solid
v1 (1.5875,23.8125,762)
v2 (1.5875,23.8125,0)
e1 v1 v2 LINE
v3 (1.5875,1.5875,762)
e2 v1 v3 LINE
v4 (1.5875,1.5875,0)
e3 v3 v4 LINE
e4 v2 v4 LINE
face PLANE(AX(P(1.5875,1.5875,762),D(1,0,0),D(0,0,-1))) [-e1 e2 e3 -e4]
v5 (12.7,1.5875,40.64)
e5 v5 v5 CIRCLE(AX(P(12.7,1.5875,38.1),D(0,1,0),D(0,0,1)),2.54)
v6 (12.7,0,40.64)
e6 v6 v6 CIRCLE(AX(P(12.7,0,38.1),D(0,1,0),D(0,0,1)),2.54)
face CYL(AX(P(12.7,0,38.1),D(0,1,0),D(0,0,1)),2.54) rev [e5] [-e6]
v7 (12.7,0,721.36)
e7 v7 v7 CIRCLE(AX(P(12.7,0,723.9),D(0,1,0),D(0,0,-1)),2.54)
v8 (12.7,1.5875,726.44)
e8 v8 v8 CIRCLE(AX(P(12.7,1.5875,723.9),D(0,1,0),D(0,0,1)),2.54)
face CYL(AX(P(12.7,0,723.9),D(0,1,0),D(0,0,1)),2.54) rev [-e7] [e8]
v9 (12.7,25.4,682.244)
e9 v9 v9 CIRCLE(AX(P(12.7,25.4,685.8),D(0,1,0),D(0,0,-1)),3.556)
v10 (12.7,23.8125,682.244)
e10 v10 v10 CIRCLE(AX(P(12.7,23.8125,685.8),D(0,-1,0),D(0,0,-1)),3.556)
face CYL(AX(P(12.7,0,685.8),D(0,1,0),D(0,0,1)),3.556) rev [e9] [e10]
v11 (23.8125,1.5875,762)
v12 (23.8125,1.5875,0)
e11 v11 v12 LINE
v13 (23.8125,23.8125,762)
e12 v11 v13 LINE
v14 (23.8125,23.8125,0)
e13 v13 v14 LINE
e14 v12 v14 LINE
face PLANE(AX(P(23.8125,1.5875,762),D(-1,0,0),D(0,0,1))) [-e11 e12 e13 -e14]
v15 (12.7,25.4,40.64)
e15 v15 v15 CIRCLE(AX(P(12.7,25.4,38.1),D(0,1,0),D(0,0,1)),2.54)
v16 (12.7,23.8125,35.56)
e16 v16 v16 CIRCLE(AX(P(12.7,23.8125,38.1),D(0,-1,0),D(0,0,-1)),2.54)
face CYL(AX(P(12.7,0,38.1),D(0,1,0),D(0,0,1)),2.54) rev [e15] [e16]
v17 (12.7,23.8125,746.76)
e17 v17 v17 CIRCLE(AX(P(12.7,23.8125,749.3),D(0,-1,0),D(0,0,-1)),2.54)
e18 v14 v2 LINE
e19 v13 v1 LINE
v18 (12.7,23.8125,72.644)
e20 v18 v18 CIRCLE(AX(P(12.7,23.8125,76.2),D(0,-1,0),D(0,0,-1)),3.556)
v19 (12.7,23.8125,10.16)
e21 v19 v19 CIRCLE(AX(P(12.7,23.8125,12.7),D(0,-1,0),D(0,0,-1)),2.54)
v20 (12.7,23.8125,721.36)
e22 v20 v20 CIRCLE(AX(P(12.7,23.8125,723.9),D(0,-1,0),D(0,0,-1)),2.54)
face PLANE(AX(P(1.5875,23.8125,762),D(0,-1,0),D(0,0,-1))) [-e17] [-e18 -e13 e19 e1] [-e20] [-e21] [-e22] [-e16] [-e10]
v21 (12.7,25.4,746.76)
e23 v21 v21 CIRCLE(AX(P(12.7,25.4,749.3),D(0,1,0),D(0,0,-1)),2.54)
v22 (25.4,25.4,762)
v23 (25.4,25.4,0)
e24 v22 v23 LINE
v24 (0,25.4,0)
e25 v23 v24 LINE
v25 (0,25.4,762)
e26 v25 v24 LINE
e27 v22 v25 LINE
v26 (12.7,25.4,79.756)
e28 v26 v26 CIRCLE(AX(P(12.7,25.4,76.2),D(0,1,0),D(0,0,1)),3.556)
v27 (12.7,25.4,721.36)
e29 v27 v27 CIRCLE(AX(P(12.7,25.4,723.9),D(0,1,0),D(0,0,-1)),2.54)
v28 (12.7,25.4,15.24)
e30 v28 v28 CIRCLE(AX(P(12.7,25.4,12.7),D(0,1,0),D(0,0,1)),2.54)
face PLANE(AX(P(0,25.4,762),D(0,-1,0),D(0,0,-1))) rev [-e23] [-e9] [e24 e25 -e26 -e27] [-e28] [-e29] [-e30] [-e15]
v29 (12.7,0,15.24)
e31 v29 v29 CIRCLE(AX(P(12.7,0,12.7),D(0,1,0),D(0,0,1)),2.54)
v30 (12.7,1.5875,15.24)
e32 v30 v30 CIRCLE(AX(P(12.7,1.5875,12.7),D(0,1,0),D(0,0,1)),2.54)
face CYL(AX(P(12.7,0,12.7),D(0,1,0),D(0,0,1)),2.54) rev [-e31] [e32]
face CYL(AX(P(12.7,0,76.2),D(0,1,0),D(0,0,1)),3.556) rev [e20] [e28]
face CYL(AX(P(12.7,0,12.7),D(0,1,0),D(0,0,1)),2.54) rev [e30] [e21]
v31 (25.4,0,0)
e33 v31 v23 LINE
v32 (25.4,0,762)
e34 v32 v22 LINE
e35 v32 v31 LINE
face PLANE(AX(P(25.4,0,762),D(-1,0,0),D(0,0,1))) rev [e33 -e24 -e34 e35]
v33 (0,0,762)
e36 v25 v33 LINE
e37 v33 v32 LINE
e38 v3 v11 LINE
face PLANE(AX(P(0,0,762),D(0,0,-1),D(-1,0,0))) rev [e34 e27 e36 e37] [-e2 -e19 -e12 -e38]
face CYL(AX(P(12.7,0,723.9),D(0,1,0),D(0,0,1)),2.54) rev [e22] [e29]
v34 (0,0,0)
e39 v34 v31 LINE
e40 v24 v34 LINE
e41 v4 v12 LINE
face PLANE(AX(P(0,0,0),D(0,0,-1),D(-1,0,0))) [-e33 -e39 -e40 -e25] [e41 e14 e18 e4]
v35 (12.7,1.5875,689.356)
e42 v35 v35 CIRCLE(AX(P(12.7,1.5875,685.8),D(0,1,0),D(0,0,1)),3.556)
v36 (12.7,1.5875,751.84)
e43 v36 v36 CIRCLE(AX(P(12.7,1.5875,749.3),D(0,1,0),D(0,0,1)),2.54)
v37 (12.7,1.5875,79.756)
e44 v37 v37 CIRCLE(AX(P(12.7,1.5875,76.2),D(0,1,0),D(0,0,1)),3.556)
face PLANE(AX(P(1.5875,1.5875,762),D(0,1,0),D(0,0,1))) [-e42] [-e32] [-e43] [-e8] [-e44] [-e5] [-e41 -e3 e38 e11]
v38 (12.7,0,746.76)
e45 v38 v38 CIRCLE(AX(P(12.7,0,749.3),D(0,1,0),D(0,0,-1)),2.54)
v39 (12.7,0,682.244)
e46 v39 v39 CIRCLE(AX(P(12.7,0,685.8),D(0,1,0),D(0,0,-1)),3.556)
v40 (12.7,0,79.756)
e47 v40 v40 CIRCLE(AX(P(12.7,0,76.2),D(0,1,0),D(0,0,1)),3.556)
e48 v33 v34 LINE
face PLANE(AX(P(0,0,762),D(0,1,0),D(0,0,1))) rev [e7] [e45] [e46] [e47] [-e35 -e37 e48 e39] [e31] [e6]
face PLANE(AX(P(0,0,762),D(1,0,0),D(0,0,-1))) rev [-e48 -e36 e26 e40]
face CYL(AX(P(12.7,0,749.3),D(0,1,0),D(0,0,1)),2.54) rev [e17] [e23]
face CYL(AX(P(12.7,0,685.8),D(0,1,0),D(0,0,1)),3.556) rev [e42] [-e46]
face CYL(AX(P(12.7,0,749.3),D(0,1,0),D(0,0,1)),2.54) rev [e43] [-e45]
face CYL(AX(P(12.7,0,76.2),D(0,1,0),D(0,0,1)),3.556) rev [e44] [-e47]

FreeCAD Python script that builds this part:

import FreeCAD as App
import Part
import Sketcher

V = App.Vector
Q = App.Units.Quantity

doc = App.newDocument("Part")
params = doc.addObject("Spreadsheet::Sheet", "Params")
for row, (alias, value) in enumerate([
    ("sketch1_width", "1 in"),
    ("sketch1_width2", "0.875 in"),
    ("pad1_length", "30 in"),
    ("sketch2_diameter", "0.2 in"),
    ("sketch2_diameter2", "0.28 in"),
], start=1):
    params.set(f"A{row}", alias)
    params.set(f"B{row}", "=" + value)
    params.setAlias(f"B{row}", alias)

body = doc.addObject("PartDesign::Body", "Body")

# Sketch on XY plane
sketch1 = body.newObject("Sketcher::SketchObject", "Sketch")
sketch1.AttachmentSupport = (doc.getObject("XY_Plane"), [""])
sketch1.MapMode = "FlatFace"
sketch1.addGeometry(Part.LineSegment(V(0, 25, 0), V(0, 0, 0)), False)
sketch1.addGeometry(Part.LineSegment(V(0, 0, 0), V(25, 0, 0)), False)
sketch1.addGeometry(Part.LineSegment(V(25, 0, 0), V(25, 25, 0)), False)
sketch1.addGeometry(Part.LineSegment(V(25, 25, 0), V(0, 25, 0)), False)
sketch1.addGeometry(Part.LineSegment(V(24, 2, 0), V(2, 2, 0)), False)
sketch1.addGeometry(Part.LineSegment(V(2, 2, 0), V(2, 24, 0)), False)
sketch1.addGeometry(Part.LineSegment(V(2, 24, 0), V(24, 24, 0)), False)
sketch1.addGeometry(Part.LineSegment(V(24, 24, 0), V(24, 2, 0)), False)
sketch1.addConstraint(Sketcher.Constraint("Coincident", 0, 2, 1, 1))
sketch1.addConstraint(Sketcher.Constraint("Coincident", 1, 2, 2, 1))
sketch1.addConstraint(Sketcher.Constraint("Coincident", 2, 2, 3, 1))
sketch1.addConstraint(Sketcher.Constraint("Coincident", 3, 2, 0, 1))
sketch1.addConstraint(Sketcher.Constraint("Coincident", 4, 2, 5, 1))
sketch1.addConstraint(Sketcher.Constraint("Coincident", 5, 2, 6, 1))
sketch1.addConstraint(Sketcher.Constraint("Coincident", 6, 2, 7, 1))
sketch1.addConstraint(Sketcher.Constraint("Coincident", 7, 2, 4, 1))
sketch1.addConstraint(Sketcher.Constraint("Vertical", 0))
sketch1.addConstraint(Sketcher.Constraint("Horizontal", 1))
sketch1.addConstraint(Sketcher.Constraint("Vertical", 2))
sketch1.addConstraint(Sketcher.Constraint("Horizontal", 3))
sketch1.addConstraint(Sketcher.Constraint("Horizontal", 4))
sketch1.addConstraint(Sketcher.Constraint("Vertical", 5))
sketch1.addConstraint(Sketcher.Constraint("Horizontal", 6))
sketch1.addConstraint(Sketcher.Constraint("Vertical", 7))
sketch1.addConstraint(Sketcher.Constraint("Coincident", 0, 2, -1, 1))
sketch1.addConstraint(Sketcher.Constraint("Equal", 3, 0))
sketch1.addConstraint(Sketcher.Constraint("Equal", 6, 5))
sketch1.addConstraint(Sketcher.Constraint("DistanceX", 1, 1, 1, 2, Q("1 in")))
sketch1.addConstraint(Sketcher.Constraint("DistanceX", 4, 2, 4, 1, Q("0.875 in")))
sketch1.addConstraint(Sketcher.Constraint("DistanceX", -1, 1, 4, 2, Q("0.0625 in")))
sketch1.addConstraint(Sketcher.Constraint("DistanceY", -1, 1, 4, 2, Q("0.0625 in")))
sketch1.setExpression("Constraints[19]", "Params.sketch1_width")
sketch1.setExpression("Constraints[20]", "Params.sketch1_width2")
pad1 = body.newObject("PartDesign::Pad", "Pad")
pad1.Profile = sketch1
pad1.setExpression("Length", "Params.pad1_length")

# Sketch on XZ plane
sketch2 = body.newObject("Sketcher::SketchObject", "Sketch001")
sketch2.AttachmentSupport = (doc.getObject("XZ_Plane"), [""])
sketch2.MapMode = "FlatFace"
sketch2.AttachmentOffset = App.Placement(V(0, 0, -1 * 25.4), App.Rotation())
sketch2.addGeometry(Part.Circle(V(12.7, 12.7, 0), V(0, 0, 1), 2.5), False)
sketch2.addGeometry(Part.Circle(V(12.7, 38.1, 0), V(0, 0, 1), 2.5), False)
sketch2.addGeometry(Part.Circle(V(12.7, 76.2, 0), V(0, 0, 1), 3.6), False)
sketch2.addGeometry(Part.Circle(V(12.7, 685.8, 0), V(0, 0, 1), 3.6), False)
sketch2.addGeometry(Part.Circle(V(12.7, 723.9, 0), V(0, 0, 1), 2.5), False)
sketch2.addGeometry(Part.Circle(V(12.7, 749.3, 0), V(0, 0, 1), 2.5), False)
sketch2.addConstraint(Sketcher.Constraint("Equal", 0, 1))
sketch2.addConstraint(Sketcher.Constraint("Equal", 2, 3))
sketch2.addConstraint(Sketcher.Constraint("Equal", 1, 4))
sketch2.addConstraint(Sketcher.Constraint("Equal", 4, 5))
sketch2.addConstraint(Sketcher.Constraint("Vertical", 0, 3, 1, 3))
sketch2.addConstraint(Sketcher.Constraint("Vertical", 1, 3, 2, 3))
sketch2.addConstraint(Sketcher.Constraint("Vertical", 2, 3, 3, 3))
sketch2.addConstraint(Sketcher.Constraint("Vertical", 3, 3, 4, 3))
sketch2.addConstraint(Sketcher.Constraint("Vertical", 4, 3, 5, 3))
sketch2.addConstraint(Sketcher.Constraint("Diameter", 0, Q("0.2 in")))
sketch2.addConstraint(Sketcher.Constraint("Diameter", 2, Q("0.28 in")))
sketch2.addConstraint(Sketcher.Constraint("DistanceY", -1, 1, 2, 3, Q("3 in")))
sketch2.addConstraint(Sketcher.Constraint("DistanceY", -1, 1, 3, 3, Q("27 in")))
sketch2.addConstraint(Sketcher.Constraint("DistanceY", 0, 3, 1, 3, Q("1 in")))
sketch2.addConstraint(Sketcher.Constraint("DistanceY", 1, 3, 4, 3, Q("27 in")))
sketch2.addConstraint(Sketcher.Constraint("DistanceY", 4, 3, 5, 3, Q("1 in")))
sketch2.addConstraint(Sketcher.Constraint("DistanceX", -1, 1, 0, 3, Q("0.5 in")))
sketch2.addConstraint(Sketcher.Constraint("DistanceY", -1, 1, 0, 3, Q("0.5 in")))
sketch2.setExpression("Constraints[9]", "Params.sketch2_diameter")
sketch2.setExpression("Constraints[10]", "Params.sketch2_diameter2")
pocket1 = body.newObject("PartDesign::Pocket", "Pocket")
pocket1.Profile = sketch2
pocket1.Type = "ThroughAll"
pocket1.Reversed = True

doc.recompute()
